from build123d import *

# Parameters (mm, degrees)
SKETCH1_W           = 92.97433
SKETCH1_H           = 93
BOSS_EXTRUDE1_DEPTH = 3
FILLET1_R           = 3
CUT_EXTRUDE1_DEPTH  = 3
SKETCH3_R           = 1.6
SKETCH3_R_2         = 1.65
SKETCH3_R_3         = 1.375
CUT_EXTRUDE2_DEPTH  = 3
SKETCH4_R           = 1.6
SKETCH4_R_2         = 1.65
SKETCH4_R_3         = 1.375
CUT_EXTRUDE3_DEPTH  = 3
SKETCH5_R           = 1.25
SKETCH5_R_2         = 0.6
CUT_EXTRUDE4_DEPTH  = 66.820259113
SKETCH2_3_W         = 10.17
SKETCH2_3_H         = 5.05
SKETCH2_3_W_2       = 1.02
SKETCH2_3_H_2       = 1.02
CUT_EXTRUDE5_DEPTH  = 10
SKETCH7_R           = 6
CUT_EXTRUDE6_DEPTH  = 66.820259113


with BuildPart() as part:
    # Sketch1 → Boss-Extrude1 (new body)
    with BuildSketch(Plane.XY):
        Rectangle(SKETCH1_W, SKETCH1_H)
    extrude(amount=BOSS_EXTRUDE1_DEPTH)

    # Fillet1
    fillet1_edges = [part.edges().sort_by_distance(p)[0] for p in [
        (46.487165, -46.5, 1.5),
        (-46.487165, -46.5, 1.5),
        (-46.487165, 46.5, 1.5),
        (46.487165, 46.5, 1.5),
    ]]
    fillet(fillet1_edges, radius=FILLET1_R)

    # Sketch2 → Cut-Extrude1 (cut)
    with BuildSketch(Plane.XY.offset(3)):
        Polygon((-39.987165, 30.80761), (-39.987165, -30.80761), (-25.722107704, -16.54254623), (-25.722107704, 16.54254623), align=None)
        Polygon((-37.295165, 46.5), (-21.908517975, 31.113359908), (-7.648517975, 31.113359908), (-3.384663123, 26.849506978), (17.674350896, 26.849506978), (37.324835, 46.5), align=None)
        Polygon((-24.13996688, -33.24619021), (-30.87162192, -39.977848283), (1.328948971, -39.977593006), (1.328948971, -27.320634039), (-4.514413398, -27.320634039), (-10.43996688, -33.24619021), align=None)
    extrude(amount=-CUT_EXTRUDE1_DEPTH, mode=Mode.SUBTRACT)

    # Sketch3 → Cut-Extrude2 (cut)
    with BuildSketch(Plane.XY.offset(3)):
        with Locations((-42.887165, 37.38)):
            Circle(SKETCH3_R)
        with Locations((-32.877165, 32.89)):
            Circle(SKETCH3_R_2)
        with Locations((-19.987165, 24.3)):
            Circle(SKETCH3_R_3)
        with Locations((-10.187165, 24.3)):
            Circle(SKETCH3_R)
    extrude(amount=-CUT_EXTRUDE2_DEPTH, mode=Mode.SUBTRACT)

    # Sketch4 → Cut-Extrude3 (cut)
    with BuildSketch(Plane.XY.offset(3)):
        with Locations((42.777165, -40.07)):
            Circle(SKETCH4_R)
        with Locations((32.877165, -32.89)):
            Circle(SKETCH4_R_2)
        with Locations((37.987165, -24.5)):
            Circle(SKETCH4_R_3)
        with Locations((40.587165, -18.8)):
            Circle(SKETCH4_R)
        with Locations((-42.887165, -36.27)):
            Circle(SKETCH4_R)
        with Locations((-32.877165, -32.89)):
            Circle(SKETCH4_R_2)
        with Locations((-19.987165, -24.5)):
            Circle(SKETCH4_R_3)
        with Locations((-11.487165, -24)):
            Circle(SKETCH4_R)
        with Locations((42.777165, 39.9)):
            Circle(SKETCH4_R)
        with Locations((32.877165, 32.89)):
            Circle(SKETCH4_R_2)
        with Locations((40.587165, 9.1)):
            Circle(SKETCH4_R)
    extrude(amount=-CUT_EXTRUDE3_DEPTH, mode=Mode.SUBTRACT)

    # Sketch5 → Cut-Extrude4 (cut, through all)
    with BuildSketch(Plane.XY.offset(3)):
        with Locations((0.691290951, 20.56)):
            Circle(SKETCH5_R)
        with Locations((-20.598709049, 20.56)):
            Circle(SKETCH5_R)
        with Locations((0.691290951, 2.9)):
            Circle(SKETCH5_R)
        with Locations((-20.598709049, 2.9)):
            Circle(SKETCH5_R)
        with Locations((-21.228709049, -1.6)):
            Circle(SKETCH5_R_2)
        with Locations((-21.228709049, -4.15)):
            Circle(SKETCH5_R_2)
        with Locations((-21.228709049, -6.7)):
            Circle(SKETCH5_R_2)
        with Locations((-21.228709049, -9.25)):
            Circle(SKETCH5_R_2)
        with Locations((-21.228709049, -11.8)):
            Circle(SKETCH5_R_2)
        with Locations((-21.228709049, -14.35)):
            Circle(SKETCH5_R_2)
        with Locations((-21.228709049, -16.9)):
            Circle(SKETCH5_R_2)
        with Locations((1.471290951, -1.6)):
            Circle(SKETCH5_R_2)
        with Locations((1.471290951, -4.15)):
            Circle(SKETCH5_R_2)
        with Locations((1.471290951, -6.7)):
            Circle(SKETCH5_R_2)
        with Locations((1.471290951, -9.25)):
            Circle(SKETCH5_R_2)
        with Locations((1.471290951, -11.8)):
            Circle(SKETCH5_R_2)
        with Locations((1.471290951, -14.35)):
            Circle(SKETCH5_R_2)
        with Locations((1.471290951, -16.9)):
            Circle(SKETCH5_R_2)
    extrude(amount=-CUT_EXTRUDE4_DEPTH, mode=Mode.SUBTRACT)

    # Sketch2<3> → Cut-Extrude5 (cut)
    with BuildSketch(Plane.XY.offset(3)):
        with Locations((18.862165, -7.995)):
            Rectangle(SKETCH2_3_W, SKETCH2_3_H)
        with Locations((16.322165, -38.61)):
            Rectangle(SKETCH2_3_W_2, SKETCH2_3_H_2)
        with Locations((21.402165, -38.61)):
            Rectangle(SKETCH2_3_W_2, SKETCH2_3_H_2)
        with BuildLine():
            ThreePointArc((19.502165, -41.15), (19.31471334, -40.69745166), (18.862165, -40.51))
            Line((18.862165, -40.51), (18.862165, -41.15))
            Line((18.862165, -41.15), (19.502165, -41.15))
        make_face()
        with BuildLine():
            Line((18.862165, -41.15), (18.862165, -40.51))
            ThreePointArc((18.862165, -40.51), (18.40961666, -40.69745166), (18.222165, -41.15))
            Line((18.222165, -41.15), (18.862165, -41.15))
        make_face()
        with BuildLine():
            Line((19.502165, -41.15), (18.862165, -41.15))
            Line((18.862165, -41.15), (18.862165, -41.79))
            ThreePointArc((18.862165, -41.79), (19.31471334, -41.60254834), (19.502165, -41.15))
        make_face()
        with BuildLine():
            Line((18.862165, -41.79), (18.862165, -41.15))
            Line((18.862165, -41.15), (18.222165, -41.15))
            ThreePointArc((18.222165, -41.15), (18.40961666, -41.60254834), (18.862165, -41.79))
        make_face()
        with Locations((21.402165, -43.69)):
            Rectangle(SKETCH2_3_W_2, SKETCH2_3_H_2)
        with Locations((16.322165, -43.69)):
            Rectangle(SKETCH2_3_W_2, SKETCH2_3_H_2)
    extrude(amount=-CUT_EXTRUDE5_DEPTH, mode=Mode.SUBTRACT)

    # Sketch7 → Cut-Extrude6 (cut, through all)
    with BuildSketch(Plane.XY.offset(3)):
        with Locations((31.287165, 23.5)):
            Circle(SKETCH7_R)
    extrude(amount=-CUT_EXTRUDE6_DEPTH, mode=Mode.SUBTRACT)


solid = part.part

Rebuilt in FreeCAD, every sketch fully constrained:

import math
import FreeCAD as App
import Part
import Sketcher
from FreeCAD import Vector
Q = App.Units.Quantity


def edges_at(feature, points):
    """Names of the edges that pass closest to the given points."""
    edges = feature.Shape.Edges
    near = lambda p: min(range(len(edges)), key=lambda i: edges[i].distToShape(Part.Vertex(*p))[0])
    return sorted({f"Edge{near(p) + 1}" for p in points})

doc = App.newDocument("Part")
params = doc.addObject("Spreadsheet::Sheet", "Params")
for row, (alias, value) in enumerate([
    ("sketch1_height", "93 mm"),
    ("pad1_length", "3 mm"),
    ("fillet_radius", "3 mm"),
    ("sketch2_width", "13.7 mm"),
    ("sketch2_width2", "14.26 mm"),
    ("sketch2_width3", "74.62 mm"),
    ("sketch2_length", "21.76 mm"),
    ("sketch2_length2", "6.03 mm"),
    ("pocket1_length", "3 mm"),
    ("sketch3_diameter", "3.2 mm"),
    ("sketch3_diameter2", "3.3 mm"),
    ("sketch3_diameter3", "2.75 mm"),
    ("pocket2_length", "3 mm"),
    ("sketch4_diameter", "3.2 mm"),
    ("sketch4_diameter2", "3.3 mm"),
    ("sketch4_diameter3", "2.75 mm"),
    ("pocket3_length", "3 mm"),
    ("sketch5_diameter", "2.5 mm"),
    ("sketch5_diameter2", "1.2 mm"),
    ("sketch6_radius", "0.64 mm"),
    ("sketch6_width", "10.17 mm"),
    ("sketch6_width2", "1.02 mm"),
    ("sketch6_height", "5.05 mm"),
    ("pocket5_length", "10 mm"),
    ("sketch7_diameter", "12 mm"),
], start=1):
    params.set(f"A{row}", alias)
    params.set(f"B{row}", "=" + value)
    params.setAlias(f"B{row}", alias)

body = doc.addObject("PartDesign::Body", "Body")

# Sketch on XY plane
sketch1 = doc.addObject("Sketcher::SketchObject", "Sketch")
body.addObject(sketch1)
sketch1.AttachmentSupport = (doc.XY_Plane, [""])
sketch1.MapMode = "FlatFace"
sketch1.addGeometry([
    Part.LineSegment(Vector(-46, 46, 0), Vector(-46, -46, 0)),
    Part.LineSegment(Vector(-46, -46, 0), Vector(46, -46, 0)),
    Part.LineSegment(Vector(46, -46, 0), Vector(46, 46, 0)),
    Part.LineSegment(Vector(46, 46, 0), Vector(-46, 46, 0)),
], False)
sketch1.addConstraint([
    Sketcher.Constraint("Coincident", 0, 2, 1, 1),
    Sketcher.Constraint("Coincident", 1, 2, 2, 1),
    Sketcher.Constraint("Coincident", 2, 2, 3, 1),
    Sketcher.Constraint("Coincident", 3, 2, 0, 1),
    Sketcher.Constraint("Vertical", 0),
    Sketcher.Constraint("Horizontal", 1),
    Sketcher.Constraint("Vertical", 2),
    Sketcher.Constraint("Horizontal", 3),
    Sketcher.Constraint("Symmetric", 0, 2, 2, 2, -1, 1),
    Sketcher.Constraint("DistanceY", 0, 2, 0, 1, Q("93 mm")),
    Sketcher.Constraint("DistanceX", 1, 1, 1, 2, Q("92.97433 mm")),
])
sketch1.setExpression("Constraints[9]", "Params.sketch1_height")
pad1 = doc.addObject("PartDesign::Pad", "Pad")
body.addObject(pad1)
pad1.Profile = sketch1
pad1.setExpression("Length", "Params.pad1_length")
doc.recompute()

fillet = doc.addObject("PartDesign::Fillet", "Fillet")
body.addObject(fillet)
fillet.Base = (pad1, edges_at(pad1, [
    (46.487, -46.5, 1.5),
    (-46.487, -46.5, 1.5),
    (-46.487, 46.5, 1.5),
    (46.487, 46.5, 1.5),
]))
fillet.setExpression("Radius", "Params.fillet_radius")

# Sketch on XY plane
sketch2 = doc.addObject("Sketcher::SketchObject", "Sketch001")
body.addObject(sketch2)
sketch2.AttachmentSupport = (doc.XY_Plane, [""])
sketch2.MapMode = "FlatFace"
sketch2.AttachmentOffset = App.Placement(Vector(0, 0, 3), App.Rotation())
sketch2.addGeometry([
    Part.LineSegment(Vector(-39.987165, 30.80761, 0), Vector(-39.987165, -30.80761, 0)),  # 0
    Part.LineSegment(Vector(-39.987165, -30.80761, 0), Vector(-25.722108, -16.542546, 0)),  # 1
    Part.LineSegment(Vector(-25.722108, -16.542546, 0), Vector(-25.722108, 16.542546, 0)),  # 2
    Part.LineSegment(Vector(-25.722108, 16.542546, 0), Vector(-39.987165, 30.80761, 0)),  # 3
    Part.LineSegment(Vector(-37.295165, 46.5, 0), Vector(-21.908518, 31.11336, 0)),  # 4
    Part.LineSegment(Vector(-21.908518, 31.11336, 0), Vector(-7.648518, 31.11336, 0)),  # 5
    Part.LineSegment(Vector(-7.648518, 31.11336, 0), Vector(-3.384663, 26.849507, 0)),  # 6
    Part.LineSegment(Vector(-3.384663, 26.849507, 0), Vector(17.674351, 26.849507, 0)),  # 7
    Part.LineSegment(Vector(17.674351, 26.849507, 0), Vector(37.324835, 46.5, 0)),  # 8
    Part.LineSegment(Vector(37.324835, 46.5, 0), Vector(-37.295165, 46.5, 0)),  # 9
    Part.LineSegment(Vector(-24.139967, -33.24619, 0), Vector(-30.871622, -39.977848, 0)),  # 10
    Part.LineSegment(Vector(-30.871622, -39.977848, 0), Vector(1.328949, -39.977593, 0)),  # 11
    Part.LineSegment(Vector(1.328949, -39.977593, 0), Vector(1.328949, -27.320634, 0)),  # 12
    Part.LineSegment(Vector(1.328949, -27.320634, 0), Vector(-4.514413, -27.320634, 0)),  # 13
    Part.LineSegment(Vector(-4.514413, -27.320634, 0), Vector(-10.439967, -33.24619, 0)),  # 14
    Part.LineSegment(Vector(-10.439967, -33.24619, 0), Vector(-24.139967, -33.24619, 0)),  # 15
], False)
sketch2.addConstraint([
    Sketcher.Constraint("Coincident", 0, 2, 1, 1),
    Sketcher.Constraint("Coincident", 1, 2, 2, 1),
    Sketcher.Constraint("Coincident", 2, 2, 3, 1),
    Sketcher.Constraint("Coincident", 3, 2, 0, 1),
    Sketcher.Constraint("Coincident", 4, 2, 5, 1),
    Sketcher.Constraint("Coincident", 5, 2, 6, 1),
    Sketcher.Constraint("Coincident", 6, 2, 7, 1),
    Sketcher.Constraint("Coincident", 7, 2, 8, 1),
    Sketcher.Constraint("Coincident", 8, 2, 9, 1),
    Sketcher.Constraint("Coincident", 9, 2, 4, 1),
    Sketcher.Constraint("Coincident", 10, 2, 11, 1),
    Sketcher.Constraint("Coincident", 11, 2, 12, 1),
    Sketcher.Constraint("Coincident", 12, 2, 13, 1),
    Sketcher.Constraint("Coincident", 13, 2, 14, 1),
    Sketcher.Constraint("Coincident", 14, 2, 15, 1),
    Sketcher.Constraint("Coincident", 15, 2, 10, 1),
    Sketcher.Constraint("Vertical", 0),
    Sketcher.Constraint("Vertical", 2),
    Sketcher.Constraint("Horizontal", 5),
    Sketcher.Constraint("Horizontal", 7),
    Sketcher.Constraint("Horizontal", 9),
    Sketcher.Constraint("Vertical", 12),
    Sketcher.Constraint("Horizontal", 13),
    Sketcher.Constraint("Horizontal", 15),
    Sketcher.Constraint("DistanceX", 15, 2, 15, 1, Q("13.7 mm")),
    Sketcher.Constraint("DistanceX", 5, 1, 5, 2, Q("14.26 mm")),
    Sketcher.Constraint("DistanceX", 9, 2, 9, 1, Q("74.62 mm")),
    Sketcher.Constraint("DistanceY", -1, 1, 8, 2, Q("46.5 mm")),
    Sketcher.Constraint("Distance", 4, Q("21.76 mm")),
    Sketcher.Constraint("Distance", 6, Q("6.03 mm")),
    Sketcher.Constraint("Distance", 10, Q("9.52 mm")),
    Sketcher.Constraint("Distance", 14, Q("8.38 mm")),
    Sketcher.Constraint("DistanceX", 3, 2, 9, 2, Q("2.692 mm")),
    Sketcher.Constraint("DistanceY", 0, 2, 0, 1, Q("61.61522 mm")),
    Sketcher.Constraint("DistanceY", 12, 1, 12, 2, Q("12.656959 mm")),
    Sketcher.Constraint("DistanceX", 3, 2, 6, 2, Q("36.602502 mm")),
    Sketcher.Constraint("DistanceY", 11, 2, 6, 2, Q("66.8271 mm")),
    Sketcher.Constraint("DistanceX", 0, 2, 15, 2, Q("15.847198 mm")),
    Sketcher.Constraint("Distance", 11, Q("32.200571 mm")),
    Sketcher.Constraint("DistanceX", 7, 1, 7, 2, Q("21.059014 mm")),
    Sketcher.Constraint("DistanceX", 13, 2, 13, 1, Q("5.843362 mm")),
    Sketcher.Constraint("DistanceY", 2, 1, 2, 2, Q("33.085092 mm")),
    Sketcher.Constraint("DistanceY", 0, 2, -1, 1, Q("30.80761 mm")),
    Sketcher.Constraint("DistanceY", -1, 1, 4, 2, Q("31.11336 mm")),
    Sketcher.Constraint("DistanceX", -1, 1, 7, 2, Q("17.674351 mm")),
    Sketcher.Constraint("DistanceX", 10, 2, -1, 1, Q("30.871622 mm")),
    Sketcher.Constraint("DistanceX", 2, 2, 4, 2, Q("3.81359 mm")),
    Sketcher.Constraint("DistanceY", 2, 2, 6, 2, Q("10.306961 mm")),
])
sketch2.setExpression("Constraints[24]", "Params.sketch2_width")
sketch2.setExpression("Constraints[25]", "Params.sketch2_width2")
sketch2.setExpression("Constraints[26]", "Params.sketch2_width3")
sketch2.setExpression("Constraints[28]", "Params.sketch2_length")
sketch2.setExpression("Constraints[29]", "Params.sketch2_length2")
pocket1 = doc.addObject("PartDesign::Pocket", "Pocket")
body.addObject(pocket1)
pocket1.Profile = sketch2
pocket1.setExpression("Length", "Params.pocket1_length")

# Sketch on XY plane
sketch3 = doc.addObject("Sketcher::SketchObject", "Sketch002")
body.addObject(sketch3)
sketch3.AttachmentSupport = (doc.XY_Plane, [""])
sketch3.MapMode = "FlatFace"
sketch3.AttachmentOffset = App.Placement(Vector(0, 0, 3), App.Rotation())
sketch3.addGeometry([
    Part.Circle(Vector(-42.9, 37.4, 0), Vector(0, 0, 1), 1.6),
    Part.Circle(Vector(-32.9, 32.9, 0), Vector(0, 0, 1), 1.6),
    Part.Circle(Vector(-20, 24.3, 0), Vector(0, 0, 1), 1.4),
    Part.Circle(Vector(-10.2, 24.3, 0), Vector(0, 0, 1), 1.6),
], False)
sketch3.addConstraint([
    Sketcher.Constraint("Equal", 0, 3),
    Sketcher.Constraint("Horizontal", 2, 3, 3, 3),
    Sketcher.Constraint("Diameter", 0, Q("3.2 mm")),
    Sketcher.Constraint("Diameter", 1, Q("3.3 mm")),
    Sketcher.Constraint("Diameter", 2, Q("2.75 mm")),
    Sketcher.Constraint("DistanceY", -1, 1, 2, 3, Q("24.3 mm")),
    Sketcher.Constraint("DistanceX", 0, 3, 2, 3, Q("22.9 mm")),
    Sketcher.Constraint("DistanceX", 2, 3, 3, 3, Q("9.8 mm")),
    Sketcher.Constraint("DistanceY", -1, 1, 0, 3, Q("37.38 mm")),
    Sketcher.Constraint("DistanceY", -1, 1, 1, 3, Q("32.89 mm")),
    Sketcher.Constraint("DistanceX", 0, 3, 1, 3, Q("10.01 mm")),
    Sketcher.Constraint("DistanceX", 0, 3, -1, 1, Q("42.887165 mm")),
])
sketch3.setExpression("Constraints[2]", "Params.sketch3_diameter")
sketch3.setExpression("Constraints[3]", "Params.sketch3_diameter2")
sketch3.setExpression("Constraints[4]", "Params.sketch3_diameter3")
pocket2 = doc.addObject("PartDesign::Pocket", "Pocket001")
body.addObject(pocket2)
pocket2.Profile = sketch3
pocket2.setExpression("Length", "Params.pocket2_length")

# Sketch on XY plane
sketch4 = doc.addObject("Sketcher::SketchObject", "Sketch003")
body.addObject(sketch4)
sketch4.AttachmentSupport = (doc.XY_Plane, [""])
sketch4.MapMode = "FlatFace"
sketch4.AttachmentOffset = App.Placement(Vector(0, 0, 3), App.Rotation())
sketch4.addGeometry([
    Part.Circle(Vector(42.8, -40.1, 0), Vector(0, 0, 1), 1.6),  # 0
    Part.Circle(Vector(32.9, -32.9, 0), Vector(0, 0, 1), 1.6),  # 1
    Part.Circle(Vector(38, -24.5, 0), Vector(0, 0, 1), 1.4),  # 2
    Part.Circle(Vector(40.6, -18.8, 0), Vector(0, 0, 1), 1.6),  # 3
    Part.Circle(Vector(-42.9, -36.3, 0), Vector(0, 0, 1), 1.6),  # 4
    Part.Circle(Vector(-32.9, -32.9, 0), Vector(0, 0, 1), 1.6),  # 5
    Part.Circle(Vector(-20, -24.5, 0), Vector(0, 0, 1), 1.4),  # 6
    Part.Circle(Vector(-11.5, -24, 0), Vector(0, 0, 1), 1.6),  # 7
    Part.Circle(Vector(42.8, 39.9, 0), Vector(0, 0, 1), 1.6),  # 8
    Part.Circle(Vector(32.9, 32.9, 0), Vector(0, 0, 1), 1.6),  # 9
    Part.Circle(Vector(40.6, 9.1, 0), Vector(0, 0, 1), 1.6),  # 10
], False)
sketch4.addConstraint([
    Sketcher.Constraint("Equal", 0, 3),
    Sketcher.Constraint("Equal", 3, 4),
    Sketcher.Constraint("Equal", 1, 5),
    Sketcher.Constraint("Equal", 2, 6),
    Sketcher.Constraint("Equal", 4, 7),
    Sketcher.Constraint("Equal", 7, 8),
    Sketcher.Constraint("Equal", 5, 9),
    Sketcher.Constraint("Equal", 8, 10),
    Sketcher.Constraint("Symmetric", 5, 3, 9, 3, -1, 1),
    Sketcher.Constraint("Symmetric", 1, 3, 5, 3, -2),
    Sketcher.Constraint("Horizontal", 2, 3, 6, 3),
    Sketcher.Constraint("Vertical", 0, 3, 8, 3),
    Sketcher.Constraint("Vertical", 3, 3, 10, 3),
    Sketcher.Constraint("Diameter", 0, Q("3.2 mm")),
    Sketcher.Constraint("Diameter", 1, Q("3.3 mm")),
    Sketcher.Constraint("Diameter", 2, Q("2.75 mm")),
    Sketcher.Constraint("DistanceY", 7, 3, -1, 1, Q("24 mm")),
    Sketcher.Constraint("DistanceY", 2, 3, -1, 1, Q("24.5 mm")),
    Sketcher.Constraint("DistanceY", 3, 3, -1, 1, Q("18.8 mm")),
    Sketcher.Constraint("DistanceY", -1, 1, 8, 3, Q("39.9 mm")),
    Sketcher.Constraint("DistanceY", -1, 1, 10, 3, Q("9.1 mm")),
    Sketcher.Constraint("DistanceX", 1, 3, 0, 3, Q("9.9 mm")),
    Sketcher.Constraint("DistanceX", 2, 3, 3, 3, Q("2.6 mm")),
    Sketcher.Constraint("DistanceY", 0, 3, 4, 3, Q("3.8 mm")),
    Sketcher.Constraint("DistanceX", 4, 3, 6, 3, Q("22.9 mm")),
    Sketcher.Constraint("DistanceX", 6, 3, 7, 3, Q("8.5 mm")),
    Sketcher.Constraint("DistanceY", 0, 3, -1, 1, Q("40.07 mm")),
    Sketcher.Constraint("DistanceY", 1, 3, -1, 1, Q("32.89 mm")),
    Sketcher.Constraint("DistanceX", 1, 3, 2, 3, Q("5.11 mm")),
    Sketcher.Constraint("DistanceX", 4, 3, 5, 3, Q("10.01 mm")),
    Sketcher.Constraint("DistanceX", 4, 3, 1, 3, Q("75.76433 mm")),
])
sketch4.setExpression("Constraints[13]", "Params.sketch4_diameter")
sketch4.setExpression("Constraints[14]", "Params.sketch4_diameter2")
sketch4.setExpression("Constraints[15]", "Params.sketch4_diameter3")
pocket3 = doc.addObject("PartDesign::Pocket", "Pocket002")
body.addObject(pocket3)
pocket3.Profile = sketch4
pocket3.setExpression("Length", "Params.pocket3_length")

# Sketch on XY plane
sketch5 = doc.addObject("Sketcher::SketchObject", "Sketch004")
body.addObject(sketch5)
sketch5.AttachmentSupport = (doc.XY_Plane, [""])
sketch5.MapMode = "FlatFace"
sketch5.AttachmentOffset = App.Placement(Vector(0, 0, 3), App.Rotation())
sketch5.addGeometry([
    Part.Circle(Vector(0.7, 20.6, 0), Vector(0, 0, 1), 1.2),  # 0
    Part.Circle(Vector(-20.6, 20.6, 0), Vector(0, 0, 1), 1.2),  # 1
    Part.Circle(Vector(0.7, 2.9, 0), Vector(0, 0, 1), 1.2),  # 2
    Part.Circle(Vector(-20.6, 2.9, 0), Vector(0, 0, 1), 1.2),  # 3
    Part.Circle(Vector(-21.2, -1.6, 0), Vector(0, 0, 1), 0.6),  # 4
    Part.Circle(Vector(-21.2, -4.2, 0), Vector(0, 0, 1), 0.6),  # 5
    Part.Circle(Vector(-21.2, -6.7, 0), Vector(0, 0, 1), 0.6),  # 6
    Part.Circle(Vector(-21.2, -9.2, 0), Vector(0, 0, 1), 0.6),  # 7
    Part.Circle(Vector(-21.2, -11.8, 0), Vector(0, 0, 1), 0.6),  # 8
    Part.Circle(Vector(-21.2, -14.3, 0), Vector(0, 0, 1), 0.6),  # 9
    Part.Circle(Vector(-21.2, -16.9, 0), Vector(0, 0, 1), 0.6),  # 10
    Part.Circle(Vector(1.5, -1.6, 0), Vector(0, 0, 1), 0.6),  # 11
    Part.Circle(Vector(1.5, -4.2, 0), Vector(0, 0, 1), 0.6),  # 12
    Part.Circle(Vector(1.5, -6.7, 0), Vector(0, 0, 1), 0.6),  # 13
    Part.Circle(Vector(1.5, -9.2, 0), Vector(0, 0, 1), 0.6),  # 14
    Part.Circle(Vector(1.5, -11.8, 0), Vector(0, 0, 1), 0.6),  # 15
    Part.Circle(Vector(1.5, -14.3, 0), Vector(0, 0, 1), 0.6),  # 16
    Part.Circle(Vector(1.5, -16.9, 0), Vector(0, 0, 1), 0.6),  # 17
], False)
sketch5.addConstraint([
    Sketcher.Constraint("Equal", 0, 1),
    Sketcher.Constraint("Equal", 1, 2),
    Sketcher.Constraint("Equal", 2, 3),
    Sketcher.Constraint("Equal", 4, 5),
    Sketcher.Constraint("Equal", 5, 6),
    Sketcher.Constraint("Equal", 6, 7),
    Sketcher.Constraint("Equal", 7, 8),
    Sketcher.Constraint("Equal", 8, 9),
    Sketcher.Constraint("Equal", 9, 10),
    Sketcher.Constraint("Equal", 10, 11),
    Sketcher.Constraint("Equal", 11, 12),
    Sketcher.Constraint("Equal", 12, 13),
    Sketcher.Constraint("Equal", 13, 14),
    Sketcher.Constraint("Equal", 14, 15),
    Sketcher.Constraint("Equal", 15, 16),
    Sketcher.Constraint("Equal", 16, 17),
    Sketcher.Constraint("Horizontal", 0, 3, 1, 3),
    Sketcher.Constraint("Horizontal", 2, 3, 3, 3),
    Sketcher.Constraint("Horizontal", 4, 3, 11, 3),
    Sketcher.Constraint("Horizontal", 5, 3, 12, 3),
    Sketcher.Constraint("Horizontal", 6, 3, 13, 3),
    Sketcher.Constraint("Horizontal", 7, 3, 14, 3),
    Sketcher.Constraint("Horizontal", 8, 3, 15, 3),
    Sketcher.Constraint("Horizontal", 9, 3, 16, 3),
    Sketcher.Constraint("Horizontal", 10, 3, 17, 3),
    Sketcher.Constraint("Vertical", 0, 3, 2, 3),
    Sketcher.Constraint("Vertical", 1, 3, 3, 3),
    Sketcher.Constraint("Vertical", 4, 3, 5, 3),
    Sketcher.Constraint("Vertical", 5, 3, 6, 3),
    Sketcher.Constraint("Vertical", 6, 3, 7, 3),
    Sketcher.Constraint("Vertical", 7, 3, 8, 3),
    Sketcher.Constraint("Vertical", 8, 3, 9, 3),
    Sketcher.Constraint("Vertical", 9, 3, 10, 3),
    Sketcher.Constraint("Vertical", 11, 3, 12, 3),
    Sketcher.Constraint("Vertical", 12, 3, 13, 3),
    Sketcher.Constraint("Vertical", 13, 3, 14, 3),
    Sketcher.Constraint("Vertical", 14, 3, 15, 3),
    Sketcher.Constraint("Vertical", 15, 3, 16, 3),
    Sketcher.Constraint("Vertical", 16, 3, 17, 3),
    Sketcher.Constraint("Diameter", 0, Q("2.5 mm")),
    Sketcher.Constraint("Diameter", 4, Q("1.2 mm")),
    Sketcher.Constraint("DistanceY", -1, 1, 2, 3, Q("2.9 mm")),
    Sketcher.Constraint("DistanceY", 4, 3, -1, 1, Q("1.6 mm")),
    Sketcher.Constraint("DistanceY", 6, 3, -1, 1, Q("6.7 mm")),
    Sketcher.Constraint("DistanceY", 8, 3, -1, 1, Q("11.8 mm")),
    Sketcher.Constraint("DistanceY", 10, 3, -1, 1, Q("16.9 mm")),
    Sketcher.Constraint("DistanceY", 7, 3, 5, 3, Q("5.1 mm")),
    Sketcher.Constraint("DistanceY", 9, 3, 7, 3, Q("5.1 mm")),
    Sketcher.Constraint("DistanceX", 4, 3, 11, 3, Q("22.7 mm")),
    Sketcher.Constraint("DistanceY", -1, 1, 0, 3, Q("20.56 mm")),
    Sketcher.Constraint("DistanceY", 5, 3, -1, 1, Q("4.15 mm")),
    Sketcher.Constraint("DistanceX", 1, 3, 0, 3, Q("21.29 mm")),
    Sketcher.Constraint("DistanceX", 4, 3, 3, 3, Q("0.63 mm")),
    Sketcher.Constraint("DistanceX", -1, 1, 0, 3, Q("0.691291 mm")),
])
sketch5.setExpression("Constraints[39]", "Params.sketch5_diameter")
sketch5.setExpression("Constraints[40]", "Params.sketch5_diameter2")
pocket4 = doc.addObject("PartDesign::Pocket", "Pocket003")
body.addObject(pocket4)
pocket4.Profile = sketch5
pocket4.Type = "ThroughAll"

# Sketch on XY plane
sketch6 = doc.addObject("Sketcher::SketchObject", "Sketch005")
body.addObject(sketch6)
sketch6.AttachmentSupport = (doc.XY_Plane, [""])
sketch6.MapMode = "FlatFace"
sketch6.AttachmentOffset = App.Placement(Vector(0, 0, 3), App.Rotation())
sketch6.addGeometry([
    Part.LineSegment(Vector(13.8, -5.5, 0), Vector(13.8, -10.5, 0)),  # 0
    Part.LineSegment(Vector(13.8, -10.5, 0), Vector(23.9, -10.5, 0)),  # 1
    Part.LineSegment(Vector(23.9, -10.5, 0), Vector(23.9, -5.5, 0)),  # 2
    Part.LineSegment(Vector(23.9, -5.5, 0), Vector(13.8, -5.5, 0)),  # 3
    Part.LineSegment(Vector(15.8, -38.1, 0), Vector(15.8, -39.1, 0)),  # 4
    Part.LineSegment(Vector(15.8, -39.1, 0), Vector(16.8, -39.1, 0)),  # 5
    Part.LineSegment(Vector(16.8, -39.1, 0), Vector(16.8, -38.1, 0)),  # 6
    Part.LineSegment(Vector(16.8, -38.1, 0), Vector(15.8, -38.1, 0)),  # 7
    Part.LineSegment(Vector(20.9, -38.1, 0), Vector(20.9, -39.1, 0)),  # 8
    Part.LineSegment(Vector(20.9, -39.1, 0), Vector(21.9, -39.1, 0)),  # 9
    Part.LineSegment(Vector(21.9, -39.1, 0), Vector(21.9, -38.1, 0)),  # 10
    Part.LineSegment(Vector(21.9, -38.1, 0), Vector(20.9, -38.1, 0)),  # 11
    Part.ArcOfCircle(Part.Circle(Vector(18.9, -41.1, 0), Vector(0, 0, 1), 0.6), math.radians(90), math.radians(180)),  # 12
    Part.ArcOfCircle(Part.Circle(Vector(18.9, -41.1, 0), Vector(0, 0, 1), 0.6), math.radians(180), math.radians(270)),  # 13
    Part.ArcOfCircle(Part.Circle(Vector(18.9, -41.1, 0), Vector(0, 0, 1), 0.6), math.radians(-90), math.radians(0)),  # 14
    Part.ArcOfCircle(Part.Circle(Vector(18.9, -41.1, 0), Vector(0, 0, 1), 0.6), math.radians(0), math.radians(90)),  # 15
    Part.LineSegment(Vector(20.9, -43.2, 0), Vector(20.9, -44.2, 0)),  # 16
    Part.LineSegment(Vector(20.9, -44.2, 0), Vector(21.9, -44.2, 0)),  # 17
    Part.LineSegment(Vector(21.9, -44.2, 0), Vector(21.9, -43.2, 0)),  # 18
    Part.LineSegment(Vector(21.9, -43.2, 0), Vector(20.9, -43.2, 0)),  # 19
    Part.LineSegment(Vector(15.8, -43.2, 0), Vector(15.8, -44.2, 0)),  # 20
    Part.LineSegment(Vector(15.8, -44.2, 0), Vector(16.8, -44.2, 0)),  # 21
    Part.LineSegment(Vector(16.8, -44.2, 0), Vector(16.8, -43.2, 0)),  # 22
    Part.LineSegment(Vector(16.8, -43.2, 0), Vector(15.8, -43.2, 0)),  # 23
], False)
sketch6.addConstraint([
    Sketcher.Constraint("Coincident", 0, 2, 1, 1),
    Sketcher.Constraint("Coincident", 1, 2, 2, 1),
    Sketcher.Constraint("Coincident", 2, 2, 3, 1),
    Sketcher.Constraint("Coincident", 3, 2, 0, 1),
    Sketcher.Constraint("Coincident", 4, 2, 5, 1),
    Sketcher.Constraint("Coincident", 5, 2, 6, 1),
    Sketcher.Constraint("Coincident", 6, 2, 7, 1),
    Sketcher.Constraint("Coincident", 7, 2, 4, 1),
    Sketcher.Constraint("Coincident", 8, 2, 9, 1),
    Sketcher.Constraint("Coincident", 9, 2, 10, 1),
    Sketcher.Constraint("Coincident", 10, 2, 11, 1),
    Sketcher.Constraint("Coincident", 11, 2, 8, 1),
    Sketcher.Constraint("Tangent", 12, 2, 13, 1),
    Sketcher.Constraint("Tangent", 13, 2, 14, 1),
    Sketcher.Constraint("Tangent", 14, 2, 15, 1),
    Sketcher.Constraint("Tangent", 15, 2, 12, 1),
    Sketcher.Constraint("Coincident", 16, 2, 17, 1),
    Sketcher.Constraint("Coincident", 17, 2, 18, 1),
    Sketcher.Constraint("Coincident", 18, 2, 19, 1),
    Sketcher.Constraint("Coincident", 19, 2, 16, 1),
    Sketcher.Constraint("Coincident", 20, 2, 21, 1),
    Sketcher.Constraint("Coincident", 21, 2, 22, 1),
    Sketcher.Constraint("Coincident", 22, 2, 23, 1),
    Sketcher.Constraint("Coincident", 23, 2, 20, 1),
    Sketcher.Constraint("Vertical", 0),
    Sketcher.Constraint("Horizontal", 1),
    Sketcher.Constraint("Vertical", 2),
    Sketcher.Constraint("Horizontal", 3),
    Sketcher.Constraint("Vertical", 4),
    Sketcher.Constraint("Horizontal", 5),
    Sketcher.Constraint("Vertical", 6),
    Sketcher.Constraint("Horizontal", 7),
    Sketcher.Constraint("Vertical", 8),
    Sketcher.Constraint("Horizontal", 9),
    Sketcher.Constraint("Vertical", 10),
    Sketcher.Constraint("Horizontal", 11),
    Sketcher.Constraint("Vertical", 16),
    Sketcher.Constraint("Horizontal", 17),
    Sketcher.Constraint("Vertical", 18),
    Sketcher.Constraint("Horizontal", 19),
    Sketcher.Constraint("Vertical", 20),
    Sketcher.Constraint("Horizontal", 21),
    Sketcher.Constraint("Vertical", 22),
    Sketcher.Constraint("Horizontal", 23),
    Sketcher.Constraint("Equal", 12, 13),
    Sketcher.Constraint("Horizontal", 5, 2, 8, 2),
    Sketcher.Constraint("Horizontal", 7, 2, 10, 2),
    Sketcher.Constraint("Horizontal", 15, 3, 12, 2),
    Sketcher.Constraint("Horizontal", 12, 2, 14, 2),
    Sketcher.Constraint("Horizontal", 17, 2, 20, 2),
    Sketcher.Constraint("Horizontal", 19, 2, 22, 2),
    Sketcher.Constraint("Vertical", 15, 3, 13, 2),
    Sketcher.Constraint("Vertical", 13, 2, 15, 2),
    Sketcher.Constraint("Vertical", 11, 2, 16, 2),
    Sketcher.Constraint("Vertical", 10, 2, 17, 2),
    Sketcher.Constraint("Vertical", 7, 2, 20, 2),
    Sketcher.Constraint("Vertical", 6, 2, 21, 2),
    Sketcher.Constraint("Equal", 7, 9),
    Sketcher.Constraint("Equal", 23, 4),
    Sketcher.Constraint("Equal", 10, 16),
    Sketcher.Constraint("Radius", 12, Q("0.64 mm")),
    Sketcher.Constraint("DistanceX", 1, 1, 1, 2, Q("10.17 mm")),
    Sketcher.Constraint("DistanceX", 5, 1, 5, 2, Q("1.02 mm")),
    Sketcher.Constraint("DistanceY", 0, 2, 0, 1, Q("5.05 mm")),
    Sketcher.Constraint("DistanceY", 6, 2, -1, 1, Q("38.1 mm")),
    Sketcher.Constraint("DistanceY", 16, 2, -1, 1, Q("44.2 mm")),
    Sketcher.Constraint("DistanceY", 4, 2, 0, 2, Q("28.6 mm")),
    Sketcher.Constraint("DistanceY", 12, 3, -1, 1, Q("41.15 mm")),
    Sketcher.Constraint("DistanceX", 4, 2, 12, 3, Q("3.05 mm")),
    Sketcher.Constraint("DistanceX", 12, 3, 8, 2, Q("2.03 mm")),
    Sketcher.Constraint("DistanceX", 0, 2, 12, 3, Q("5.085 mm")),
    Sketcher.Constraint("DistanceX", -1, 1, 12, 3, Q("18.862165 mm")),
])
sketch6.setExpression("Constraints[60]", "Params.sketch6_radius")
sketch6.setExpression("Constraints[61]", "Params.sketch6_width")
sketch6.setExpression("Constraints[62]", "Params.sketch6_width2")
sketch6.setExpression("Constraints[63]", "Params.sketch6_height")
pocket5 = doc.addObject("PartDesign::Pocket", "Pocket004")
body.addObject(pocket5)
pocket5.Profile = sketch6
pocket5.setExpression("Length", "Params.pocket5_length")

# Sketch on XY plane
sketch7 = doc.addObject("Sketcher::SketchObject", "Sketch006")
body.addObject(sketch7)
sketch7.AttachmentSupport = (doc.XY_Plane, [""])
sketch7.MapMode = "FlatFace"
sketch7.AttachmentOffset = App.Placement(Vector(0, 0, 3), App.Rotation())
sketch7.addGeometry(Part.Circle(Vector(31, 24, 0), Vector(0, 0, 1), 6), False)
sketch7.addConstraint([
    Sketcher.Constraint("Diameter", 0, Q("12 mm")),
    Sketcher.Constraint("DistanceY", -1, 1, 0, 3, Q("23.5 mm")),
    Sketcher.Constraint("DistanceX", -1, 1, 0, 3, Q("31.287165 mm")),
])
sketch7.setExpression("Constraints[0]", "Params.sketch7_diameter")
pocket6 = doc.addObject("PartDesign::Pocket", "Pocket005")
body.addObject(pocket6)
pocket6.Profile = sketch7
pocket6.Type = "ThroughAll"

doc.recompute()
